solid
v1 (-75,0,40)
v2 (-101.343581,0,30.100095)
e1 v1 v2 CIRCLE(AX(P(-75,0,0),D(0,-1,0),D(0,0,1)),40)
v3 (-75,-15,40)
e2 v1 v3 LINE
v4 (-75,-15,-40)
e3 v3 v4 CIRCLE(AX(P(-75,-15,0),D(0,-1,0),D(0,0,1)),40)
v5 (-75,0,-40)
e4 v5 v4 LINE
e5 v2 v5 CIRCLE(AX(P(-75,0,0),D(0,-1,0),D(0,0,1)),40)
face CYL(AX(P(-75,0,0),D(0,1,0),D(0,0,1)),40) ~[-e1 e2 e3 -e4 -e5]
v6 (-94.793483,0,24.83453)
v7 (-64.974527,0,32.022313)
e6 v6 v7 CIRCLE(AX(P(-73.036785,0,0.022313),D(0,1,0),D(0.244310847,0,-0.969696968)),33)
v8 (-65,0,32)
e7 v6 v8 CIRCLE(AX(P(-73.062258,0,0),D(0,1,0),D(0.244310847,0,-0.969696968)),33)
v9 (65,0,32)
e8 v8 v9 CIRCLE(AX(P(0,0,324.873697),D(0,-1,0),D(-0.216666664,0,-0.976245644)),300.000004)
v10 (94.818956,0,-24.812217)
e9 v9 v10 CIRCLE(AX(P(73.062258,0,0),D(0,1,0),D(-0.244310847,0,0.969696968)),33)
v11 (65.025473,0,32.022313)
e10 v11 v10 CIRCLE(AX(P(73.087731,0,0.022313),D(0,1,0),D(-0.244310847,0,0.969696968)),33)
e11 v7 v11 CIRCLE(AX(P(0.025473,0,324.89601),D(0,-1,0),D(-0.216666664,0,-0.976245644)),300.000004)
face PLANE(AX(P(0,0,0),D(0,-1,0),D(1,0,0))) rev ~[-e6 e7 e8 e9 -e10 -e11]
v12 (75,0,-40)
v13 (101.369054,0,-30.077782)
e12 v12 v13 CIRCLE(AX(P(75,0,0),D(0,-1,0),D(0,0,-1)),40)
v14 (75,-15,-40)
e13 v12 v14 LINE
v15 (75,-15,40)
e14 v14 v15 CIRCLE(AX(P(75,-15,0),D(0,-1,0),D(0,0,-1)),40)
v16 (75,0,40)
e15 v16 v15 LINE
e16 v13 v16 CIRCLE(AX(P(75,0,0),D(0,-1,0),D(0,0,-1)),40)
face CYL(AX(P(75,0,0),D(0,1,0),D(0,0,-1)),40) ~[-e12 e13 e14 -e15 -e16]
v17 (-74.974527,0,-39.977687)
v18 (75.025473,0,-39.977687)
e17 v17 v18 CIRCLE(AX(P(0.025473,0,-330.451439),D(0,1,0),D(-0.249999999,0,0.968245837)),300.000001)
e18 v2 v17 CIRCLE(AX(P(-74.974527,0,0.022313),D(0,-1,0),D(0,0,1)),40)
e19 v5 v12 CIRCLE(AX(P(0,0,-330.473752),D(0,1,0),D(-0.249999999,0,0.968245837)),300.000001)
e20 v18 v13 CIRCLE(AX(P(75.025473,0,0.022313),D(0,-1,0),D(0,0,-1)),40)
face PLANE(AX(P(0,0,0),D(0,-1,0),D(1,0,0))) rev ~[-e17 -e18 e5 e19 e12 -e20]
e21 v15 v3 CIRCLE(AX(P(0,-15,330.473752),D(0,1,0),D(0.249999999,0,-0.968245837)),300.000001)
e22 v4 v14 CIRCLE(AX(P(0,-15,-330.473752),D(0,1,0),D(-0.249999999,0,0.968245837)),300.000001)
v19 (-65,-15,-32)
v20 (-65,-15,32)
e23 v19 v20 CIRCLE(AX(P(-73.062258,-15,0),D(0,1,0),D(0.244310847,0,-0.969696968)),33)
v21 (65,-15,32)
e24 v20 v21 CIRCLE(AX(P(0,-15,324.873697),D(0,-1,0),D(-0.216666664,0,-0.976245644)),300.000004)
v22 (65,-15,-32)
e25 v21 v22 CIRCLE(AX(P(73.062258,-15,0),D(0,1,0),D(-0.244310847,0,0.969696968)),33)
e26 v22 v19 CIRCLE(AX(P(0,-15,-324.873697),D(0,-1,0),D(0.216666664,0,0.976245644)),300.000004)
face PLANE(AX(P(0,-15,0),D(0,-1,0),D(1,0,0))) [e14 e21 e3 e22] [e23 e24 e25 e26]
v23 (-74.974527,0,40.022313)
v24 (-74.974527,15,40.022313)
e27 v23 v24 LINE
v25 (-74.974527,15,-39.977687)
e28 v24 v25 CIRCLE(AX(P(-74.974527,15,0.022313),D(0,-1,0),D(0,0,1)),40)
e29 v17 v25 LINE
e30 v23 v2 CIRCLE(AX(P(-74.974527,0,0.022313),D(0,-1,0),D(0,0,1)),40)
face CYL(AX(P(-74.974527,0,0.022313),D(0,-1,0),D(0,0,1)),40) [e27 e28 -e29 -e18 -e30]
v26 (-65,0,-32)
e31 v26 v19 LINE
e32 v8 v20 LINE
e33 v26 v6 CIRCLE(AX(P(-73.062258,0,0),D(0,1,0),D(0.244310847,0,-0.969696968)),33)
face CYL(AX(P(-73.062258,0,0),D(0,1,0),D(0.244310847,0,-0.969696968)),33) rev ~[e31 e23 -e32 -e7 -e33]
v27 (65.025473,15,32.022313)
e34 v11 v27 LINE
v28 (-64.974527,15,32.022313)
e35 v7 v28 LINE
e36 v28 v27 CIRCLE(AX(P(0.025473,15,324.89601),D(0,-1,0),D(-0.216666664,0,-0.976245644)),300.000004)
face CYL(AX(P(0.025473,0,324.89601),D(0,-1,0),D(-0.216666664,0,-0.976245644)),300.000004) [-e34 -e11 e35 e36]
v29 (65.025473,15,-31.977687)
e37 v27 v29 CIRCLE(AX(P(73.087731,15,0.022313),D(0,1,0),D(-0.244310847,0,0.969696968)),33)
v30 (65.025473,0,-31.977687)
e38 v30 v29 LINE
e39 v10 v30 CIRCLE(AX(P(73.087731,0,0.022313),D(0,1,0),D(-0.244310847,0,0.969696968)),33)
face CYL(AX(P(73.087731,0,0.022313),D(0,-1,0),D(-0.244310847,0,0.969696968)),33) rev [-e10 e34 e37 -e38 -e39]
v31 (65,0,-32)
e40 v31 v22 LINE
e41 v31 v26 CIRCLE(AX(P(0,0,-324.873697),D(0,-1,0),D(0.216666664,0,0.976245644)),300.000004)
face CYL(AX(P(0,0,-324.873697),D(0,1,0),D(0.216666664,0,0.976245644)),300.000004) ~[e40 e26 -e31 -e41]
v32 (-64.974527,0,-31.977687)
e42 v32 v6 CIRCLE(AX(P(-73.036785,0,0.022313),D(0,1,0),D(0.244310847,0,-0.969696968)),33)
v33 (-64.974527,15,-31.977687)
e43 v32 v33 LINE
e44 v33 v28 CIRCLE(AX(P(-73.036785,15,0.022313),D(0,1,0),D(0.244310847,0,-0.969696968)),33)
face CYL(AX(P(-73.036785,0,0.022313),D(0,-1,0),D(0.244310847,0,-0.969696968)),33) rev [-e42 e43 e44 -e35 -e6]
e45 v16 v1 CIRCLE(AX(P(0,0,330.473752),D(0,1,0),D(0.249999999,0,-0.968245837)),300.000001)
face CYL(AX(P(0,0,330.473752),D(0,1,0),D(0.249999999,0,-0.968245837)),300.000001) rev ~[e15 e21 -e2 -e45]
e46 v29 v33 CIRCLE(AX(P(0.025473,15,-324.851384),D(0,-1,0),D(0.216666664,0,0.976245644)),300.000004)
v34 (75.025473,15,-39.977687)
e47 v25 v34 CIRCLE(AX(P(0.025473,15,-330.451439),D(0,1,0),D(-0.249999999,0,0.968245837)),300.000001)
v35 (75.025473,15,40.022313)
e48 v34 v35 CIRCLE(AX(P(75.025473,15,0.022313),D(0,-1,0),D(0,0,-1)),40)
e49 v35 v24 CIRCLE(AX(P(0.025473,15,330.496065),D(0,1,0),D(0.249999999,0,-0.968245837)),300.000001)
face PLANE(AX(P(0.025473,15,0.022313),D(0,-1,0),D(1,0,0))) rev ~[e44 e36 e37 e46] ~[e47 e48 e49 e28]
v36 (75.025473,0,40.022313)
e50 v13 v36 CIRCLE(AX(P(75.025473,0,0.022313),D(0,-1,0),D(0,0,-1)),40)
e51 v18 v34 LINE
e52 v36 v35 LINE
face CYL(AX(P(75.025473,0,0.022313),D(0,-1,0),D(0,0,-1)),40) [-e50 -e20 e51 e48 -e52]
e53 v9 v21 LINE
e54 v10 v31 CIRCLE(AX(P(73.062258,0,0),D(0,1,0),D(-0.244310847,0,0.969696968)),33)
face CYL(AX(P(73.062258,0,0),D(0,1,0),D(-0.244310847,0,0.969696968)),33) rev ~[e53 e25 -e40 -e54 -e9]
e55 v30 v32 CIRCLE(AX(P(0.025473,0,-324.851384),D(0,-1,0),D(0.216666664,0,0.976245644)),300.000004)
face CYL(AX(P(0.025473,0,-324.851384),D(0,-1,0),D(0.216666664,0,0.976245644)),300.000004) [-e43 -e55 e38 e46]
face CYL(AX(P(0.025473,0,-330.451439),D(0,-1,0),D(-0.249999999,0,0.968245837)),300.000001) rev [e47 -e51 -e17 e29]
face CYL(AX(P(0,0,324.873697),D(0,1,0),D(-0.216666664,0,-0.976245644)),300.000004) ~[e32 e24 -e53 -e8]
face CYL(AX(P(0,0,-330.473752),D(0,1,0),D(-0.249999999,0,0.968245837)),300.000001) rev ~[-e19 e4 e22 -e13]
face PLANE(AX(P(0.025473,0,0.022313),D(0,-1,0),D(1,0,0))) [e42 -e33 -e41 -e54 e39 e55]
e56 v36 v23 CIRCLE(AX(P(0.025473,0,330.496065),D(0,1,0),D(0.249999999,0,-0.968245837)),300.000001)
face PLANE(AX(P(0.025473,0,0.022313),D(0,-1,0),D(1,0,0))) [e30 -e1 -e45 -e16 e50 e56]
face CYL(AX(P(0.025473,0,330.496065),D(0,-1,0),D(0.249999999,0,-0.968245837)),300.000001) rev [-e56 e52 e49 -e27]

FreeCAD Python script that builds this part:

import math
import FreeCAD as App
import Part
import Sketcher
from FreeCAD import Vector
Q = App.Units.Quantity

doc = App.newDocument("Part")
body = doc.addObject("PartDesign::Body", "Body")

sketch1 = body.newObject("Sketcher::SketchObject", "Sketch")
sketch1.AttachmentSupport = (doc.getObject("XZ_Plane"), [""])
sketch1.MapMode = "FlatFace"
sketch1.addGeometry([
    Part.ArcOfCircle(Part.Circle(Vector(0, -330.473752, 0), Vector(0, 0, 1), 300.000001), math.radians(75.522488), math.radians(104.477512)),
    Part.ArcOfCircle(Part.Circle(Vector(75, 0, 0), Vector(0, 0, 1), 40), math.radians(-90), math.radians(90)),
    Part.ArcOfCircle(Part.Circle(Vector(0, 330.473752, 0), Vector(0, 0, 1), 300.000001), math.radians(-104.477512), math.radians(-75.522488)),
    Part.ArcOfCircle(Part.Circle(Vector(-75, 0, 0), Vector(0, 0, 1), 40), math.radians(90), math.radians(270)),
    Part.ArcOfCircle(Part.Circle(Vector(0, -324.873697, 0), Vector(0, 0, 1), 300.000004), math.radians(77.486675), math.radians(102.513325)),
    Part.ArcOfCircle(Part.Circle(Vector(-73.062258, 0, 0), Vector(0, 0, 1), 33), math.radians(75.858889), math.radians(284.141111)),
    Part.ArcOfCircle(Part.Circle(Vector(0, 324.873697, 0), Vector(0, 0, 1), 300.000004), math.radians(-102.513325), math.radians(-77.486675)),
    Part.ArcOfCircle(Part.Circle(Vector(73.062258, 0, 0), Vector(0, 0, 1), 33), math.radians(-104.141111), math.radians(104.141111)),
], False)
sketch1.addConstraint([
    Sketcher.Constraint("Coincident", 0, 1, 1, 1),
    Sketcher.Constraint("Coincident", 1, 2, 2, 2),
    Sketcher.Constraint("Coincident", 2, 1, 3, 1),
    Sketcher.Constraint("Coincident", 3, 2, 0, 2),
    Sketcher.Constraint("Coincident", 4, 2, 5, 2),
    Sketcher.Constraint("Coincident", 5, 1, 6, 1),
    Sketcher.Constraint("Coincident", 6, 2, 7, 2),
    Sketcher.Constraint("Coincident", 7, 1, 4, 1),
    Sketcher.Constraint("Equal", 0, 2),
    Sketcher.Constraint("Equal", 1, 3),
    Sketcher.Constraint("Equal", 4, 6),
    Sketcher.Constraint("Equal", 5, 7),
    Sketcher.Constraint("Symmetric", 0, 3, 2, 3, -1, 1),
    Sketcher.Constraint("Symmetric", 1, 3, 3, 3, -1, 1),
    Sketcher.Constraint("Symmetric", 4, 3, 6, 3, -1, 1),
    Sketcher.Constraint("Symmetric", 5, 3, 7, 3, -1, 1),
    Sketcher.Constraint("Symmetric", 1, 2, 2, 1, -2),
    Sketcher.Constraint("Symmetric", 5, 1, 6, 2, -2),
    Sketcher.Constraint("Vertical", 1, 3, 0, 1),
    Sketcher.Constraint("Radius", 0, Q("300.000001 mm")),
    Sketcher.Constraint("Radius", 1, Q("40 mm")),
    Sketcher.Constraint("Radius", 5, Q("33 mm")),
    Sketcher.Constraint("DistanceX", -1, 1, 1, 3, Q("75 mm")),
    Sketcher.Constraint("DistanceX", 4, 2, -1, 1, Q("65 mm")),
    Sketcher.Constraint("DistanceY", 4, 2, -1, 1, Q("32 mm")),
    Sketcher.Constraint("Radius", 4, Q("300.000004 mm")),
])
pad1 = body.newObject("PartDesign::Pad", "Pad")
pad1.Profile = sketch1
pad1.Length = 15

sketch2 = body.newObject("Sketcher::SketchObject", "Sketch001")
sketch2.AttachmentSupport = (doc.getObject("XZ_Plane"), [""])
sketch2.MapMode = "FlatFace"
sketch2.addGeometry([
    Part.ArcOfCircle(Part.Circle(Vector(0.025473, -330.451439, 0), Vector(0, 0, 1), 300.000001), math.radians(75.522488), math.radians(104.477512)),
    Part.ArcOfCircle(Part.Circle(Vector(75.025473, 0.022313, 0), Vector(0, 0, 1), 40), math.radians(-90), math.radians(90)),
    Part.ArcOfCircle(Part.Circle(Vector(0.025473, 330.496065, 0), Vector(0, 0, 1), 300.000001), math.radians(-104.477512), math.radians(-75.522488)),
    Part.ArcOfCircle(Part.Circle(Vector(-74.974527, 0.022313, 0), Vector(0, 0, 1), 40), math.radians(90), math.radians(270)),
    Part.ArcOfCircle(Part.Circle(Vector(0.025473, -324.851384, 0), Vector(0, 0, 1), 300.000004), math.radians(77.486675), math.radians(102.513325)),
    Part.ArcOfCircle(Part.Circle(Vector(-73.036785, 0.022313, 0), Vector(0, 0, 1), 33), math.radians(75.858889), math.radians(284.141111)),
    Part.ArcOfCircle(Part.Circle(Vector(0.025473, 324.89601, 0), Vector(0, 0, 1), 300.000004), math.radians(-102.513325), math.radians(-77.486675)),
    Part.ArcOfCircle(Part.Circle(Vector(73.087731, 0.022313, 0), Vector(0, 0, 1), 33), math.radians(-104.141111), math.radians(104.141111)),
], False)
sketch2.addConstraint([
    Sketcher.Constraint("Coincident", 0, 1, 1, 1),
    Sketcher.Constraint("Coincident", 1, 2, 2, 2),
    Sketcher.Constraint("Coincident", 2, 1, 3, 1),
    Sketcher.Constraint("Coincident", 3, 2, 0, 2),
    Sketcher.Constraint("Coincident", 4, 2, 5, 2),
    Sketcher.Constraint("Coincident", 5, 1, 6, 1),
    Sketcher.Constraint("Coincident", 6, 2, 7, 2),
    Sketcher.Constraint("Coincident", 7, 1, 4, 1),
    Sketcher.Constraint("Equal", 0, 2),
    Sketcher.Constraint("Equal", 1, 3),
    Sketcher.Constraint("Equal", 4, 6),
    Sketcher.Constraint("Equal", 5, 7),
    Sketcher.Constraint("Horizontal", 1, 3, 3, 3),
    Sketcher.Constraint("Horizontal", 3, 3, 5, 3),
    Sketcher.Constraint("Horizontal", 5, 3, 7, 3),
    Sketcher.Constraint("Horizontal", 5, 1, 6, 2),
    Sketcher.Constraint("Horizontal", 4, 2, 7, 1),
    Sketcher.Constraint("Vertical", 0, 3, 2, 3),
    Sketcher.Constraint("Vertical", 2, 3, 4, 3),
    Sketcher.Constraint("Vertical", 1, 3, 0, 1),
    Sketcher.Constraint("Vertical", 0, 1, 1, 2),
    Sketcher.Constraint("Vertical", 3, 3, 2, 1),
    Sketcher.Constraint("Vertical", 4, 2, 5, 1),
    Sketcher.Constraint("Radius", 0, Q("300.000001 mm")),
    Sketcher.Constraint("Radius", 1, Q("40 mm")),
    Sketcher.Constraint("Radius", 5, Q("33 mm")),
    Sketcher.Constraint("DistanceX", 0, 3, 1, 3, Q("75 mm")),
    Sketcher.Constraint("DistanceX", 3, 2, 4, 2, Q("10 mm")),
    Sketcher.Constraint("DistanceY", 3, 2, 4, 2, Q("8 mm")),
    Sketcher.Constraint("Radius", 4, Q("300.000004 mm")),
    Sketcher.Constraint("DistanceY", 0, 3, -1, 1, Q("330.451439 mm")),
    Sketcher.Constraint("DistanceX", -1, 1, 7, 3, Q("73.087731 mm")),
])
pad2 = body.newObject("PartDesign::Pad", "Pad001")
pad2.Profile = sketch2
pad2.Length = 15
pad2.Reversed = True

doc.recompute()
